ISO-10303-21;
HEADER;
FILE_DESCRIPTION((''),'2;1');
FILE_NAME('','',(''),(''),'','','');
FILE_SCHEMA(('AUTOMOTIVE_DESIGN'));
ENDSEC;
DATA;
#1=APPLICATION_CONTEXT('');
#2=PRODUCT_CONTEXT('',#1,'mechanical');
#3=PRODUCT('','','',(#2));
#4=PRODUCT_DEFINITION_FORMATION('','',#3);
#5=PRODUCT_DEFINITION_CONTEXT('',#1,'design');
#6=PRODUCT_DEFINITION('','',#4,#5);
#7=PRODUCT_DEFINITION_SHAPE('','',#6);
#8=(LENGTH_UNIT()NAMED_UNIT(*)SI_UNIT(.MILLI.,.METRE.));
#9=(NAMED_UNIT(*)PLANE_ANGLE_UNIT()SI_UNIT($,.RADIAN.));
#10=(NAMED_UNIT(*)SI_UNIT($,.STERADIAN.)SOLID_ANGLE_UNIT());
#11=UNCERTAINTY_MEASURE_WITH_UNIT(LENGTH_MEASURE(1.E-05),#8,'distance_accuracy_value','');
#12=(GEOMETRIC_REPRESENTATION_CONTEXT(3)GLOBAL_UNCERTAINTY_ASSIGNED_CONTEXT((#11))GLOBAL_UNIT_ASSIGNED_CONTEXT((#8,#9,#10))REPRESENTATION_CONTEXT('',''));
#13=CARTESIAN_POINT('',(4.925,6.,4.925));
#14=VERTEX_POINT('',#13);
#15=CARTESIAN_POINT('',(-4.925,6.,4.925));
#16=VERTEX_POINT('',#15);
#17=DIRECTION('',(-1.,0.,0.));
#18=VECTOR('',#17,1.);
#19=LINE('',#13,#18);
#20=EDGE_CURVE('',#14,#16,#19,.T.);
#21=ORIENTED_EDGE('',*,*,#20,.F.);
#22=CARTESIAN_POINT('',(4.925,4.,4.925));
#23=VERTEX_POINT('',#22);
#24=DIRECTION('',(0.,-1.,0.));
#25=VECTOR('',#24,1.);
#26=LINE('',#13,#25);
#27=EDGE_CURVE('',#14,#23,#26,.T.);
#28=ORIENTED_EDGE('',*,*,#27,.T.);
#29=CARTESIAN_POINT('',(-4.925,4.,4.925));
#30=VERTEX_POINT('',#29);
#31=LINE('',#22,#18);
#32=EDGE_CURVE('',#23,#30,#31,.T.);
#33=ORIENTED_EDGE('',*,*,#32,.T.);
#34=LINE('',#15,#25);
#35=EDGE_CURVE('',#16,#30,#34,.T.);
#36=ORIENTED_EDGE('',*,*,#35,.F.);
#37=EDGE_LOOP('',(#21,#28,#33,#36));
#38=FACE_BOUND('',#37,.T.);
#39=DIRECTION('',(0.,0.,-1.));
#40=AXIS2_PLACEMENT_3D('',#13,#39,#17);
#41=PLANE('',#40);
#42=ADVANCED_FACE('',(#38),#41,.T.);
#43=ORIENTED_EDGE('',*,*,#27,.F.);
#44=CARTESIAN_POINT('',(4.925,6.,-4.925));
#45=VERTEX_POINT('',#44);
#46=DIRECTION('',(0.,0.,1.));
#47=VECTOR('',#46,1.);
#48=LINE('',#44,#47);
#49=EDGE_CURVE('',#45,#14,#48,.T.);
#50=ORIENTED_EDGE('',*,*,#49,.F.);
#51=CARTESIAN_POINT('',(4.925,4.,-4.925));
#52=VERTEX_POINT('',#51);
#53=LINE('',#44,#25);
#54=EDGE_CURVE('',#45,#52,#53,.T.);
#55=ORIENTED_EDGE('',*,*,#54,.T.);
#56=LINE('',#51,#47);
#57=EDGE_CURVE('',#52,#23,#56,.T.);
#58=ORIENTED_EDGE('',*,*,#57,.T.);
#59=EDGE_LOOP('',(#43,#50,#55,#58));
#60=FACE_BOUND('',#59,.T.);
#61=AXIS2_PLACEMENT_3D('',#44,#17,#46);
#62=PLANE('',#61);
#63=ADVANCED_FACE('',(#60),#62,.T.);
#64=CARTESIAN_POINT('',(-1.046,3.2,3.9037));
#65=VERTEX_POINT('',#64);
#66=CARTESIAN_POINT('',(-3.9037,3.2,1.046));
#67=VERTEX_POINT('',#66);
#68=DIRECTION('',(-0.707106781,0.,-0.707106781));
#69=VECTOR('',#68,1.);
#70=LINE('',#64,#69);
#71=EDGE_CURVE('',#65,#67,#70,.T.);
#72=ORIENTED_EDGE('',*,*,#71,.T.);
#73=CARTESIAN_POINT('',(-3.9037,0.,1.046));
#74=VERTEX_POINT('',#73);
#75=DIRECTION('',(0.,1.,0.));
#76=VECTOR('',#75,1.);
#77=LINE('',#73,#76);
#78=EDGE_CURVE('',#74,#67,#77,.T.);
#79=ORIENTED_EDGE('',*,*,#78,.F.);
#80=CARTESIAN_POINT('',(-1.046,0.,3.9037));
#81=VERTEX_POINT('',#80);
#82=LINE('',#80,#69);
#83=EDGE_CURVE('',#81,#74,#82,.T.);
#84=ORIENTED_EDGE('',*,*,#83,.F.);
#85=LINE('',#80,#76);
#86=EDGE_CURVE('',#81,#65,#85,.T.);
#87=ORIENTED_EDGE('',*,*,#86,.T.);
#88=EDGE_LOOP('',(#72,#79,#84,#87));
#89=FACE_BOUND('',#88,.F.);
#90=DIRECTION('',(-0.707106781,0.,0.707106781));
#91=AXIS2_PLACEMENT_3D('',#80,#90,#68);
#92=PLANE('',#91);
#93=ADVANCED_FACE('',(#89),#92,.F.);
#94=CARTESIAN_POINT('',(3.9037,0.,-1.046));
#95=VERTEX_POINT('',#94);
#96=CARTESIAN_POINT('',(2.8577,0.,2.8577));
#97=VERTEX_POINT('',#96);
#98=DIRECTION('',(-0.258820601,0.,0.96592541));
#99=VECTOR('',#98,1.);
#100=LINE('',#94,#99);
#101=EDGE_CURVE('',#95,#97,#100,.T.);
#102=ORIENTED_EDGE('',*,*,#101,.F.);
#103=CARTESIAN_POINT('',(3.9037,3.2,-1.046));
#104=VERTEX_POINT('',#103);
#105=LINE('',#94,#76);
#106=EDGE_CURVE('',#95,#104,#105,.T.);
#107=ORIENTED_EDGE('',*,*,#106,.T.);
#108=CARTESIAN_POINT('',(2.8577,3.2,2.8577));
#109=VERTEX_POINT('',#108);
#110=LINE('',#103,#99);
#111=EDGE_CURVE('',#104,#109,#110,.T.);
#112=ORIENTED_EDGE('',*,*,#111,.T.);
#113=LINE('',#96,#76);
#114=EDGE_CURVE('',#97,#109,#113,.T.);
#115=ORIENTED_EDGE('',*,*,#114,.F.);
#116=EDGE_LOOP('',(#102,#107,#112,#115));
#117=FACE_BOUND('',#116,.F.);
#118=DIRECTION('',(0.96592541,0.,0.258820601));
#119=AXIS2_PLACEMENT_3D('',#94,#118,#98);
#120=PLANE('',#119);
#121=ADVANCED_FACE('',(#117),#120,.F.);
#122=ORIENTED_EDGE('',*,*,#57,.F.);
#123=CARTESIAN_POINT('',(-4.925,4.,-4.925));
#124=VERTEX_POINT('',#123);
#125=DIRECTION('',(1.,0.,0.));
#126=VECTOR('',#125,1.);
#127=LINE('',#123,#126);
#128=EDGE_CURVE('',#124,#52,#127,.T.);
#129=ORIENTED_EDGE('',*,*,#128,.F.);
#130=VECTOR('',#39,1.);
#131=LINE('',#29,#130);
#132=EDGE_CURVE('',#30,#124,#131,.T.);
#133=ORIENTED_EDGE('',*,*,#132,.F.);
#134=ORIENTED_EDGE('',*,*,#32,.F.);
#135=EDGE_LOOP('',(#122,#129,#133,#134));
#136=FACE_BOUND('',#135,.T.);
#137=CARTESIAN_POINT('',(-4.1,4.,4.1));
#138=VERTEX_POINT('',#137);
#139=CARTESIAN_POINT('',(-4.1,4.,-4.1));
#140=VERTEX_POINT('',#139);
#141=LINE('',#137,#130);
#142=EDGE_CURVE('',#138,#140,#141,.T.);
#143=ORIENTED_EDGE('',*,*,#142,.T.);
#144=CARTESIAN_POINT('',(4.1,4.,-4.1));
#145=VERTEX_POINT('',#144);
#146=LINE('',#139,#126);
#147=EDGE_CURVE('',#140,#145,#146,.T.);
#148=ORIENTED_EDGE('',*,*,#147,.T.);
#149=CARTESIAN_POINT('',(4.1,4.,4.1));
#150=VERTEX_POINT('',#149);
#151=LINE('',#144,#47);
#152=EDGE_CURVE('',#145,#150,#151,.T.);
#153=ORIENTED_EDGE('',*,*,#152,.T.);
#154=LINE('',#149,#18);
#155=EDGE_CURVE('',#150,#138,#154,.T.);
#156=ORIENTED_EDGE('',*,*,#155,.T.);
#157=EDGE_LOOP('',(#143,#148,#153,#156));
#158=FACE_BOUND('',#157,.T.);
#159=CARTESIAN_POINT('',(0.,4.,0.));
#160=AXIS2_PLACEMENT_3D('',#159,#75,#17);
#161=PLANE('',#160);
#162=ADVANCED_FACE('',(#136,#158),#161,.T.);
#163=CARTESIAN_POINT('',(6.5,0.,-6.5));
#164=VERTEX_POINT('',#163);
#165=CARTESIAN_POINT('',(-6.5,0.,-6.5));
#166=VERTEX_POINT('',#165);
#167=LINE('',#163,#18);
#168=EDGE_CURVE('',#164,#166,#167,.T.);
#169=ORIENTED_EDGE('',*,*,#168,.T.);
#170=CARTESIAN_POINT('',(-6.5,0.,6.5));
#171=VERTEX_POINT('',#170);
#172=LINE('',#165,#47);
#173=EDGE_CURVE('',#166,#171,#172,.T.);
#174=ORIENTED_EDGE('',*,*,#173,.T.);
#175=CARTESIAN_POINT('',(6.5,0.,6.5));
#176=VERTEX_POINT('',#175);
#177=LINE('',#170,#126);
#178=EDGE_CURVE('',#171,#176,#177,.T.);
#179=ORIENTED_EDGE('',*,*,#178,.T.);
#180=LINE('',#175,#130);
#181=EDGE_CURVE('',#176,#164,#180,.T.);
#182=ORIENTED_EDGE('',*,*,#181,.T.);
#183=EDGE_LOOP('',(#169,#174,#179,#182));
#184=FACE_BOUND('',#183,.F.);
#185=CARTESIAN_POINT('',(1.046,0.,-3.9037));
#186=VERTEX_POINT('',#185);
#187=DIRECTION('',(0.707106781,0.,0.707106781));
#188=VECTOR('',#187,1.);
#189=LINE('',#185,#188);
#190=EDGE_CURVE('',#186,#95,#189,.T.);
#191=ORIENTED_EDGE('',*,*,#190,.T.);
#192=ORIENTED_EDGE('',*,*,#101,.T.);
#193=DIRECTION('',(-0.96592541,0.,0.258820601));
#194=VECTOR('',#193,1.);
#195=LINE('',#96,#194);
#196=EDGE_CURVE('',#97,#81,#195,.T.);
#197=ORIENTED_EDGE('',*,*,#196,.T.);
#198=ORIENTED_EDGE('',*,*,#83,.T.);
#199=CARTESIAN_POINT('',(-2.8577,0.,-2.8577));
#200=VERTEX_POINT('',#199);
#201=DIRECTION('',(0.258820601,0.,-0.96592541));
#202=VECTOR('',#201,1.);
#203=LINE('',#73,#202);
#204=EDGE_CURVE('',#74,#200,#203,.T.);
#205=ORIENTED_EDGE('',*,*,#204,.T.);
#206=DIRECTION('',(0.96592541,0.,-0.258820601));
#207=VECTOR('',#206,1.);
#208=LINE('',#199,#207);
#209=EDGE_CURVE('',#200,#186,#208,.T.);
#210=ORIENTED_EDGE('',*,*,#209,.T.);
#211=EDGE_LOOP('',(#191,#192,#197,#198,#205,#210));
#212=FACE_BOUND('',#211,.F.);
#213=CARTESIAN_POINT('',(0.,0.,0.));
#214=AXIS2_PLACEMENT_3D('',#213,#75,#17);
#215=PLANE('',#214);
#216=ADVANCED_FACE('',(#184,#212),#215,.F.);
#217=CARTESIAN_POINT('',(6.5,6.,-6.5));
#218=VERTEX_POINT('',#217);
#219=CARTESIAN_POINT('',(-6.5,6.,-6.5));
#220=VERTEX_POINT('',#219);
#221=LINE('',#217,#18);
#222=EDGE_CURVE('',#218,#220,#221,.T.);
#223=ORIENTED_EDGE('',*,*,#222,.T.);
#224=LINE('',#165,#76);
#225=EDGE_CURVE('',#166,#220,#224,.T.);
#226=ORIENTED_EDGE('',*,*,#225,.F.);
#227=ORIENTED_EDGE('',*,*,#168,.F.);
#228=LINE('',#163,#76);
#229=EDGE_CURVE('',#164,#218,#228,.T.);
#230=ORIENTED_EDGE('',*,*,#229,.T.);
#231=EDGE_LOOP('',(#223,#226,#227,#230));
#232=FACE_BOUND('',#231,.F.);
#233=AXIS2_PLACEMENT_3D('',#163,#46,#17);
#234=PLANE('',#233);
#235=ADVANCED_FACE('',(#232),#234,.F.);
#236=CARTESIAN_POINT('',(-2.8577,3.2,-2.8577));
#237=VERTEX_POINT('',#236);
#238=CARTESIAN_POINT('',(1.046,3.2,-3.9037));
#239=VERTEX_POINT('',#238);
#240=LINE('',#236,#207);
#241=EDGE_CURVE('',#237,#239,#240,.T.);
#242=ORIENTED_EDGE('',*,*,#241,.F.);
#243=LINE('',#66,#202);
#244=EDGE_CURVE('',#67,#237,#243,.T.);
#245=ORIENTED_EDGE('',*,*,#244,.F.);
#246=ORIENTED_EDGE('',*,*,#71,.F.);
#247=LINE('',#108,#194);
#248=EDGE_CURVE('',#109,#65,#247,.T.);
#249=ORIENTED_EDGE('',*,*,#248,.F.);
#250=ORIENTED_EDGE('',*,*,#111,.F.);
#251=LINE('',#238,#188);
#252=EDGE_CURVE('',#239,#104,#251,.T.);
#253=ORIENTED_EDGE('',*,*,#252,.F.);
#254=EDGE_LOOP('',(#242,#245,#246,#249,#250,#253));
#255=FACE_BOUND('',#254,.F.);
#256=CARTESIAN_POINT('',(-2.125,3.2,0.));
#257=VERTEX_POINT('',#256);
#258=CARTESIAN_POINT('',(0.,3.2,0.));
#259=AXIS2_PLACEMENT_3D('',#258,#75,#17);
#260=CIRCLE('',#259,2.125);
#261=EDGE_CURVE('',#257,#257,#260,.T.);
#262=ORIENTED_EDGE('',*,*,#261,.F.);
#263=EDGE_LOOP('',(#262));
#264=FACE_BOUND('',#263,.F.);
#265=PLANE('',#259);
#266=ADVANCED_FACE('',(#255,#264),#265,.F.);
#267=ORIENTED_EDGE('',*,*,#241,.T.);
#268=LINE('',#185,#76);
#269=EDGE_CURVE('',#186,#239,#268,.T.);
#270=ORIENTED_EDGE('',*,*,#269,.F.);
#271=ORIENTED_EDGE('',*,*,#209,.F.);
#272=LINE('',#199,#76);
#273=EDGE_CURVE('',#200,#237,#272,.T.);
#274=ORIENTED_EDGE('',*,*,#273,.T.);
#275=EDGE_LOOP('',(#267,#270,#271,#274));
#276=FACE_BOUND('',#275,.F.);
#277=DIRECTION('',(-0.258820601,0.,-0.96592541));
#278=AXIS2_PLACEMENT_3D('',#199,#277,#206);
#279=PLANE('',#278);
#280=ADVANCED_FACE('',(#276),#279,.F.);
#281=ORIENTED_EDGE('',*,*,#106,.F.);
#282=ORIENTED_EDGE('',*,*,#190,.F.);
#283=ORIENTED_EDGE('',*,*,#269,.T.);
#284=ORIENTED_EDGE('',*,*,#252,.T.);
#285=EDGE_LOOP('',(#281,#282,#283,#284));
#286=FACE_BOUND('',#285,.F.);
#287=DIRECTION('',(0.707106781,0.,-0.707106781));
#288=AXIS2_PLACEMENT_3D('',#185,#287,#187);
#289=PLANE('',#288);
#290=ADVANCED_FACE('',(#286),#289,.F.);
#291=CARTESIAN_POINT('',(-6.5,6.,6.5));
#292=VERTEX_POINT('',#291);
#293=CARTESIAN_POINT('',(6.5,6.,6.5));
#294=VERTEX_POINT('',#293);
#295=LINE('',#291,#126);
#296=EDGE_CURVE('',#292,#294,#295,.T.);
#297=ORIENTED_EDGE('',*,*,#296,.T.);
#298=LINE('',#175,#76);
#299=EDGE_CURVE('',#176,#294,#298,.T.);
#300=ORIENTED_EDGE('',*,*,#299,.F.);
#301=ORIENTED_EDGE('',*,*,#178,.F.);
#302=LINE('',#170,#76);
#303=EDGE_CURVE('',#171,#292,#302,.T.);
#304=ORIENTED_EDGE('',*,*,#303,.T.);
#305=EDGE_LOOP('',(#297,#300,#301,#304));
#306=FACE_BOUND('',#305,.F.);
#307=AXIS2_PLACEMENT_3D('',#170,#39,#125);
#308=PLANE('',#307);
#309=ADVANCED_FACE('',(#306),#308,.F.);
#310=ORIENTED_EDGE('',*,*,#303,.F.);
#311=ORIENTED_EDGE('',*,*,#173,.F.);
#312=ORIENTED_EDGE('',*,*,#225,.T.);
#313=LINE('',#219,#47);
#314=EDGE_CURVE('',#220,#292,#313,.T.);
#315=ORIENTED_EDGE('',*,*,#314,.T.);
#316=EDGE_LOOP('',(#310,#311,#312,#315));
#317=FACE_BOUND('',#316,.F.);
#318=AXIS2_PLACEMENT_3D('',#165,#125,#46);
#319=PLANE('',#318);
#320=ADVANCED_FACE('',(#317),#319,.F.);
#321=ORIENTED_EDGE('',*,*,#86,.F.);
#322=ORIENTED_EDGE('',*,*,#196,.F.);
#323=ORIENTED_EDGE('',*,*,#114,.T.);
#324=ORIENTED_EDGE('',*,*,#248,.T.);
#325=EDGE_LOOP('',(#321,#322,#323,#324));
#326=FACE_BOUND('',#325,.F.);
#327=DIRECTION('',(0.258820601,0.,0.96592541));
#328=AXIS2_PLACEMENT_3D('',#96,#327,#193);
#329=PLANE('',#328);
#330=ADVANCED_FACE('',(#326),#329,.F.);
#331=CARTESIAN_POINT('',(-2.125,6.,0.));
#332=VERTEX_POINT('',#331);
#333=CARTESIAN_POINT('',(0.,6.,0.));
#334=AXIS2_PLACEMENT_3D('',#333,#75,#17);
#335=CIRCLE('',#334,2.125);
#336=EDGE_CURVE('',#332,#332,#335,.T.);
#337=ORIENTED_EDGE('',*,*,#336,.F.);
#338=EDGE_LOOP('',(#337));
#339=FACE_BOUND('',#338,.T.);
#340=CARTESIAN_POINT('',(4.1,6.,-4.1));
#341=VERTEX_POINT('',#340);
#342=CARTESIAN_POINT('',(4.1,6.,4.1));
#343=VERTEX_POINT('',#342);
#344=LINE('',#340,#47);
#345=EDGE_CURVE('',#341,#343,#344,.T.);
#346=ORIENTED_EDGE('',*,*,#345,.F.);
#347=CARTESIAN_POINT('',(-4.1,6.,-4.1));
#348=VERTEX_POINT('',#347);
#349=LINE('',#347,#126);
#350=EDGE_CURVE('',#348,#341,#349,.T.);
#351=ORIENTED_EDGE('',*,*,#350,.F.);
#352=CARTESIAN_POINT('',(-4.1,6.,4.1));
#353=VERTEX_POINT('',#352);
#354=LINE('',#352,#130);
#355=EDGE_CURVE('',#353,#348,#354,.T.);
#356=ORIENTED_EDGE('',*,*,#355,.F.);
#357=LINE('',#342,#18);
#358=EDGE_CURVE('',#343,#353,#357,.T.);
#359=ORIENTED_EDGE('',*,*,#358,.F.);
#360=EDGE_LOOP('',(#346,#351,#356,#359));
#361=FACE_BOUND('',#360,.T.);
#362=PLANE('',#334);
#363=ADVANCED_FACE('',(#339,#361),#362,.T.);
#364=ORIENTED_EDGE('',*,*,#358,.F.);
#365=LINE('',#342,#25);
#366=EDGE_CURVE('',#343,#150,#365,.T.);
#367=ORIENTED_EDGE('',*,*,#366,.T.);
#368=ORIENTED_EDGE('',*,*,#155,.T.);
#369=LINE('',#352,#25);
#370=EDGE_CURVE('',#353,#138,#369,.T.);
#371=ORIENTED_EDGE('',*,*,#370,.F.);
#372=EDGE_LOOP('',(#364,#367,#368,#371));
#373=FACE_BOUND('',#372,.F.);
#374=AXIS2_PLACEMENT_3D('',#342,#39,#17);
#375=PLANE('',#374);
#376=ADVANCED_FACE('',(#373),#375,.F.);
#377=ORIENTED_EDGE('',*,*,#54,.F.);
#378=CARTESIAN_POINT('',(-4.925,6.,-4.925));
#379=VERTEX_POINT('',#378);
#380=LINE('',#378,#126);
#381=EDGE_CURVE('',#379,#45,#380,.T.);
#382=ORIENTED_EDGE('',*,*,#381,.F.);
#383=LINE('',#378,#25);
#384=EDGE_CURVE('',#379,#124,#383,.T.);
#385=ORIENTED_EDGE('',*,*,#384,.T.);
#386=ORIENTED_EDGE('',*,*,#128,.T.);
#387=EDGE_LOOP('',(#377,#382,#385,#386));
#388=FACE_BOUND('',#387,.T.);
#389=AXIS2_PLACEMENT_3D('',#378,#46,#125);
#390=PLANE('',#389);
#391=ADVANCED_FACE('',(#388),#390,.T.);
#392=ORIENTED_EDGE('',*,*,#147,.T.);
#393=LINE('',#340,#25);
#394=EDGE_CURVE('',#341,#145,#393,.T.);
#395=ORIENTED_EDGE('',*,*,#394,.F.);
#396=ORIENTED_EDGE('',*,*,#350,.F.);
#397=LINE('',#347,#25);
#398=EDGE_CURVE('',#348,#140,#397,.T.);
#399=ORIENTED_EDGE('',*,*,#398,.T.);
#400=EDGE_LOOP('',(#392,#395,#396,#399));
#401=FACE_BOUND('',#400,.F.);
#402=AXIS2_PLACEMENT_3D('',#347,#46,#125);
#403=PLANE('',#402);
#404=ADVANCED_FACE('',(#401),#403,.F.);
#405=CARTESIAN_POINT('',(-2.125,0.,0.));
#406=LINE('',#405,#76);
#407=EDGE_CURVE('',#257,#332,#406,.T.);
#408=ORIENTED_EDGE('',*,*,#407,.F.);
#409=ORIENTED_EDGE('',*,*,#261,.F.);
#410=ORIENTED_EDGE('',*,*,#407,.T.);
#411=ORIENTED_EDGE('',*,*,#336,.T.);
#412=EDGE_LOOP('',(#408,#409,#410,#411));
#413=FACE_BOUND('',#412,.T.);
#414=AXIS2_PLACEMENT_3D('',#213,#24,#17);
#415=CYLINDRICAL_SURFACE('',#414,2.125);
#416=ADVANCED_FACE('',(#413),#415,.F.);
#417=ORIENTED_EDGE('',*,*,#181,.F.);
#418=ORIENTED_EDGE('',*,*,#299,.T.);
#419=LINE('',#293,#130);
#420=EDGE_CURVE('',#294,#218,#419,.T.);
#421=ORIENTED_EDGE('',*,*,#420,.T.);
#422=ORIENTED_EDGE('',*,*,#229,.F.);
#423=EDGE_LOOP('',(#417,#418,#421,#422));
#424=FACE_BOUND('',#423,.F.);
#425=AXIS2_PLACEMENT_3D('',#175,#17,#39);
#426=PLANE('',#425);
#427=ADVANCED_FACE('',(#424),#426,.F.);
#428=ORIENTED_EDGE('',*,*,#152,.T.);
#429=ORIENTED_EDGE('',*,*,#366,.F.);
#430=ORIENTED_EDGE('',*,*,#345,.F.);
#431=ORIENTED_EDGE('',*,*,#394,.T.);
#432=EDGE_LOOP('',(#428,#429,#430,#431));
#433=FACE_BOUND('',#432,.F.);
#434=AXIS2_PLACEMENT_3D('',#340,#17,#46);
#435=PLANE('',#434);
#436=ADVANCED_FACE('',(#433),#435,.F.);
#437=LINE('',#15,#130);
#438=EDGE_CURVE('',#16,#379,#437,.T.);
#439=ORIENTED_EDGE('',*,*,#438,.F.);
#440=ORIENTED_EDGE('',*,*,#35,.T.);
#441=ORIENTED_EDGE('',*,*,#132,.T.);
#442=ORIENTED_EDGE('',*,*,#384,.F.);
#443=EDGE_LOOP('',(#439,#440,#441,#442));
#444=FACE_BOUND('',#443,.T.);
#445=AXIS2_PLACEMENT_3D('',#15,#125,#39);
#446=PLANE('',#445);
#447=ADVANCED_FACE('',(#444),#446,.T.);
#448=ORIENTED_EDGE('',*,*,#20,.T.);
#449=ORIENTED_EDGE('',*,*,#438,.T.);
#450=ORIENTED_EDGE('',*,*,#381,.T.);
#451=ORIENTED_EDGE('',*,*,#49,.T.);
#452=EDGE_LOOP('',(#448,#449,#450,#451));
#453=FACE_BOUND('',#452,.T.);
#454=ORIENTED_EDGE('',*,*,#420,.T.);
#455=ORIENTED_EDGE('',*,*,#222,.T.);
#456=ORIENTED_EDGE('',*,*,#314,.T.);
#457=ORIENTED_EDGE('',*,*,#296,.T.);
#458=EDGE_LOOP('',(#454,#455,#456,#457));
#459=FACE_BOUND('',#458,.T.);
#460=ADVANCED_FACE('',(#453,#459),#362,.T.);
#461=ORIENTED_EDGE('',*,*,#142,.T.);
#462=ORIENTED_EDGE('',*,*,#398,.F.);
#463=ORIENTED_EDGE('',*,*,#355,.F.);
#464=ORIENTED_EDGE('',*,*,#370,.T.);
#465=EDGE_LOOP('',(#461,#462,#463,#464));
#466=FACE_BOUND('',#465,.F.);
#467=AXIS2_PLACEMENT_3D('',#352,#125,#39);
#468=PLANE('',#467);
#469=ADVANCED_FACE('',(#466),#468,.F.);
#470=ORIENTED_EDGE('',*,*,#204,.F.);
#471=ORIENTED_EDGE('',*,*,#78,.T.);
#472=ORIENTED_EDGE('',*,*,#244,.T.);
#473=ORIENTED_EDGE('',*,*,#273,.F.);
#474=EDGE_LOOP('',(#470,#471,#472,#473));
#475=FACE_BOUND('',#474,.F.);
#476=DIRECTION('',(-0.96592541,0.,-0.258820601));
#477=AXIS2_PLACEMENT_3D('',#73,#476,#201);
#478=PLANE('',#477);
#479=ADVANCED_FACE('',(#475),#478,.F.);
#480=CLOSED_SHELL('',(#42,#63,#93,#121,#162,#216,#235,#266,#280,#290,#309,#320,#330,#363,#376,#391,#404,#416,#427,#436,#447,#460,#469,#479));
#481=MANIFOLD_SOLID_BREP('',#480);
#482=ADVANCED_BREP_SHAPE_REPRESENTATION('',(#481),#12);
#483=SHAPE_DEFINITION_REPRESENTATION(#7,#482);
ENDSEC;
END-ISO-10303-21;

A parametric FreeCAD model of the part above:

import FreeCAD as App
import Part
import Sketcher
from FreeCAD import Vector
Q = App.Units.Quantity


def add_polygon(sketch, points):
    """Adds a closed chain of lines whose ends are joined by coincident constraints."""
    first, n = sketch.GeometryCount, len(points)
    for a, b in zip(points, points[1:] + points[:1]):
        sketch.addGeometry(Part.LineSegment(App.Vector(*a, 0), App.Vector(*b, 0)), False)
    for i in range(n):
        sketch.addConstraint(Sketcher.Constraint("Coincident", first + i, 2, first + (i + 1) % n, 1))

doc = App.newDocument("Part")
body = doc.addObject("PartDesign::Body", "Body")

sketch1 = body.newObject("Sketcher::SketchObject", "Sketch")
sketch1.AttachmentSupport = (doc.getObject("XZ_Plane"), [""])
sketch1.MapMode = "FlatFace"
add_polygon(sketch1, [(6, 6), (6, -6), (-6, -6), (-6, 6)])
sketch1.addConstraint([
    Sketcher.Constraint("Vertical", 0),
    Sketcher.Constraint("Horizontal", 1),
    Sketcher.Constraint("Vertical", 2),
    Sketcher.Constraint("Horizontal", 3),
    Sketcher.Constraint("Symmetric", 0, 2, 2, 2, -1, 1),
    Sketcher.Constraint("Equal", 3, 0),
    Sketcher.Constraint("DistanceX", 1, 2, 1, 1, Q("13 mm")),
])
pad1 = body.newObject("PartDesign::Pad", "Pad")
pad1.Profile = sketch1
pad1.Length = 6
pad1.Reversed = True

sketch2 = body.newObject("Sketcher::SketchObject", "Sketch001")
sketch2.AttachmentSupport = (doc.getObject("XZ_Plane"), [""])
sketch2.MapMode = "FlatFace"
sketch2.AttachmentOffset = App.Placement(Vector(0, 0, -6), App.Rotation())
add_polygon(sketch2, [(5, -5), (-5, -5), (-5, 5), (5, 5)])
add_polygon(sketch2, [(-4, 4), (-4, -4), (4, -4), (4, 4)])
sketch2.addConstraint([
    Sketcher.Constraint("Horizontal", 0),
    Sketcher.Constraint("Vertical", 1),
    Sketcher.Constraint("Horizontal", 2),
    Sketcher.Constraint("Vertical", 3),
    Sketcher.Constraint("Vertical", 4),
    Sketcher.Constraint("Horizontal", 5),
    Sketcher.Constraint("Vertical", 6),
    Sketcher.Constraint("Horizontal", 7),
    Sketcher.Constraint("Symmetric", 0, 2, 2, 2, -1, 1),
    Sketcher.Constraint("Symmetric", 4, 2, 6, 2, -1, 1),
    Sketcher.Constraint("Equal", 2, 1),
    Sketcher.Constraint("Equal", 7, 4),
    Sketcher.Constraint("DistanceX", 5, 1, 5, 2, Q("8.2 mm")),
    Sketcher.Constraint("DistanceX", 0, 2, 0, 1, Q("9.85 mm")),
])
pocket1 = body.newObject("PartDesign::Pocket", "Pocket")
pocket1.Profile = sketch2
pocket1.Length = 2
pocket1.Reversed = True

sketch3 = body.newObject("Sketcher::SketchObject", "Sketch002")
sketch3.AttachmentSupport = (doc.getObject("XZ_Plane"), [""])
sketch3.MapMode = "FlatFace"
add_polygon(sketch3, [(-3.9, 1), (-1, 3.9), (2.9, 2.9), (3.9, -1), (1, -3.9), (-2.9, -2.9)])
sketch3.addGeometry(Part.Circle(Vector(0, 0, 0), Vector(0, 0, 1), 2.1), False)
sketch3.addConstraint([
    Sketcher.Constraint("Coincident", 6, 3, -1, 1),
    Sketcher.Constraint("Symmetric", 0, 2, 3, 2, -1, 1),
    Sketcher.Constraint("Symmetric", 1, 2, 4, 2, -1, 1),
    Sketcher.Constraint("Symmetric", 2, 2, 5, 2, -1, 1),
    Sketcher.Constraint("Equal", 0, 1),
    Sketcher.Constraint("Equal", 1, 2),
    Sketcher.Constraint("Diameter", 6, Q("4.25 mm")),
    Sketcher.Constraint("Angle", 0, Q("45 deg")),
    Sketcher.Constraint("Angle", 1, Q("-15 deg")),
    Sketcher.Constraint("Angle", 2, Q("-75 deg")),
    Sketcher.Constraint("DistanceX", 0, 2, -1, 1, Q("1.046 mm")),
])
pocket2 = body.newObject("PartDesign::Pocket", "Pocket001")
pocket2.Profile = sketch3
pocket2.Length = 3.2

sketch4 = body.newObject("Sketcher::SketchObject", "Sketch003")
sketch4.AttachmentSupport = (doc.getObject("XZ_Plane"), [""])
sketch4.MapMode = "FlatFace"
sketch4.addGeometry(Part.Circle(Vector(0, 0, 0), Vector(0, 0, 1), 2.1), False)
sketch4.addConstraint([
    Sketcher.Constraint("Coincident", 0, 3, -1, 1),
    Sketcher.Constraint("Diameter", 0, Q("4.25 mm")),
])
pocket3 = body.newObject("PartDesign::Pocket", "Pocket002")
pocket3.Profile = sketch4
pocket3.Length = 6

doc.recompute()
